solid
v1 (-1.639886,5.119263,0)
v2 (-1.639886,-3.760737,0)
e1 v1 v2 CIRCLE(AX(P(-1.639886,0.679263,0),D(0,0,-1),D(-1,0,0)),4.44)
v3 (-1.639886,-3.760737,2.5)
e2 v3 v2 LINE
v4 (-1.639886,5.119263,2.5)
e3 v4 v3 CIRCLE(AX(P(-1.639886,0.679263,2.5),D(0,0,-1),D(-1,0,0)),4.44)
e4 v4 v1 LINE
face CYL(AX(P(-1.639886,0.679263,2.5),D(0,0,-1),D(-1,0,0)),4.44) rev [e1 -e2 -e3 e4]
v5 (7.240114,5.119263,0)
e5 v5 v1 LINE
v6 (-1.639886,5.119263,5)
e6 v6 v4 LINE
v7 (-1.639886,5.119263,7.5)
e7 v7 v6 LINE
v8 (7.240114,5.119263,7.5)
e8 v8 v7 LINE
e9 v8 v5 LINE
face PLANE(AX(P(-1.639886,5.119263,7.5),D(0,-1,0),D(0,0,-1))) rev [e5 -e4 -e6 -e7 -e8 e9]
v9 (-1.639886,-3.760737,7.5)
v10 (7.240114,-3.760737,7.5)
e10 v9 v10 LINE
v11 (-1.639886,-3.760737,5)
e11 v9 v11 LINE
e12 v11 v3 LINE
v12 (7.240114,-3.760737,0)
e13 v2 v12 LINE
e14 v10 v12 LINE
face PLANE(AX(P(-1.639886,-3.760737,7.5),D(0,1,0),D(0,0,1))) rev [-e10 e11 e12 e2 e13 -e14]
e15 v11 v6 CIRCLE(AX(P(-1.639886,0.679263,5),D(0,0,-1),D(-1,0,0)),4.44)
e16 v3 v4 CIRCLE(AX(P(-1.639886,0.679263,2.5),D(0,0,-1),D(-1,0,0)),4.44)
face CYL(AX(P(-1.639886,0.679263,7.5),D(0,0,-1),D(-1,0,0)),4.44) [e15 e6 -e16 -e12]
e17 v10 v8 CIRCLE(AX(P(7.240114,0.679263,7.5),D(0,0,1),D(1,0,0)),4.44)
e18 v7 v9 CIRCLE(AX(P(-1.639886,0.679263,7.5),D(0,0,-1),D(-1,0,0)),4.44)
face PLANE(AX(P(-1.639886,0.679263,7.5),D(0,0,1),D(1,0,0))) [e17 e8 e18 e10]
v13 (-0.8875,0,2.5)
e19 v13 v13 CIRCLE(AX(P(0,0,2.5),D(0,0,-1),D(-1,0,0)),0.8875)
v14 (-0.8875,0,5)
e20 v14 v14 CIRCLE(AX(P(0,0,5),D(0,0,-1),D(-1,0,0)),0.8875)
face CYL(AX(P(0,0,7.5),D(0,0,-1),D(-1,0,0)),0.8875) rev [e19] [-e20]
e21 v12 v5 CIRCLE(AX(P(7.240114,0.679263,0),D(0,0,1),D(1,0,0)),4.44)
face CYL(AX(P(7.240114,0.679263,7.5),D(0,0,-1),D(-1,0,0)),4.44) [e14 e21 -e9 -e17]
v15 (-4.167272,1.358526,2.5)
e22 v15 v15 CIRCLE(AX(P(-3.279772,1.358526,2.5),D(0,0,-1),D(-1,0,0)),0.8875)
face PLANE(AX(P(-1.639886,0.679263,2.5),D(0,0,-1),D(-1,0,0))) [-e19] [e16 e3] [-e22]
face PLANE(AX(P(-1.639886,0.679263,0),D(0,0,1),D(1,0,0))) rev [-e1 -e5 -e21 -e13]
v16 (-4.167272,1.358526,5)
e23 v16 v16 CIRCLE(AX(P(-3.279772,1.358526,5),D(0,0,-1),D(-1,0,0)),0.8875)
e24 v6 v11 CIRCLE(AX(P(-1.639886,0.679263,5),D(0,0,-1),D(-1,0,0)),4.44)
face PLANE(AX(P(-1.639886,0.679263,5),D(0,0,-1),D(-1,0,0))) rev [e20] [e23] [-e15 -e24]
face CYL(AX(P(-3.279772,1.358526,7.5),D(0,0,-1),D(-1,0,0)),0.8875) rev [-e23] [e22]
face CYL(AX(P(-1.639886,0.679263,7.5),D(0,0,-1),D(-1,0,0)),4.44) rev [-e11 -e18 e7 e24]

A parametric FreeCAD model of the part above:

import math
import FreeCAD as App
import Part
import Sketcher
from FreeCAD import Vector

doc = App.newDocument("Part")
params = doc.addObject("Spreadsheet::Sheet", "Params")
for row, (alias, value) in enumerate([
    ("sketch1_radius", "4.44 mm"),
    ("sketch1_width", "8.88 mm"),
    ("pad1_length", "7.5 mm"),
    ("sketch2_diameter", "8.88 mm"),
    ("pocket1_length", "2.5 mm"),
    ("sketch3_diameter", "8.88 mm"),
    ("pocket2_length", "2.5 mm"),
], start=1):
    params.set(f"A{row}", alias)
    params.set(f"B{row}", "=" + value)
    params.setAlias(f"B{row}", alias)

body = doc.addObject("PartDesign::Body", "Body")

# Sketch on XY plane
sketch1 = body.newObject("Sketcher::SketchObject", "Sketch")
sketch1.AttachmentSupport = (doc.getObject("XY_Plane"), [""])
sketch1.MapMode = "FlatFace"
sketch1.addGeometry([
    Part.LineSegment(Vector(7.2, 5.1, 0), Vector(-1.6, 5.1, 0)),  # 0
    Part.ArcOfCircle(Part.Circle(Vector(-1.6, 0.7, 0), Vector(0, 0, 1), 4.4), math.radians(90), math.radians(270)),  # 1
    Part.LineSegment(Vector(-1.6, -3.8, 0), Vector(7.2, -3.8, 0)),  # 2
    Part.ArcOfCircle(Part.Circle(Vector(7.2, 0.7, 0), Vector(0, 0, 1), 4.4), math.radians(-90), math.radians(90)),  # 3
    Part.Circle(Vector(0, 0, 0), Vector(0, 0, 1), 0.9),  # 4
    Part.Circle(Vector(-3.3, 1.4, 0), Vector(0, 0, 1), 0.9),  # 5
], False)
sketch1.addConstraint([
    Sketcher.Constraint("Tangent", 0, 2, 1, 1),
    Sketcher.Constraint("Tangent", 1, 2, 2, 1),
    Sketcher.Constraint("Tangent", 2, 2, 3, 1),
    Sketcher.Constraint("Tangent", 3, 2, 0, 1),
    Sketcher.Constraint("Horizontal", 0),
    Sketcher.Constraint("Horizontal", 2),
    Sketcher.Constraint("Coincident", 4, 3, -1, 1),
    Sketcher.Constraint("Equal", 4, 5),
    Sketcher.Constraint("Radius", 1, 4.44),
    Sketcher.Constraint("Diameter", 4, 1.775),
    Sketcher.Constraint("DistanceX", 0, 2, 0, 1, 8.88),
    Sketcher.Constraint("DistanceX", 1, 3, -1, 1, 1.639886),
    Sketcher.Constraint("DistanceY", -1, 1, 1, 3, 0.679263),
    Sketcher.Constraint("DistanceX", 5, 3, -1, 1, 3.279772),
    Sketcher.Constraint("DistanceY", -1, 1, 5, 3, 1.358526),
])
sketch1.setExpression("Constraints[8]", "Params.sketch1_radius")
sketch1.setExpression("Constraints[10]", "Params.sketch1_width")
pad1 = body.newObject("PartDesign::Pad", "Pad")
pad1.Profile = sketch1
pad1.setExpression("Length", "Params.pad1_length")

# Sketch on XY plane
sketch2 = body.newObject("Sketcher::SketchObject", "Sketch001")
sketch2.AttachmentSupport = (doc.getObject("XY_Plane"), [""])
sketch2.MapMode = "FlatFace"
sketch2.addGeometry(Part.Circle(Vector(-1.6, 0.7, 0), Vector(0, 0, 1), 4.4), False)
sketch2.addConstraint([
    Sketcher.Constraint("Diameter", 0, 8.88),
    Sketcher.Constraint("DistanceX", 0, 3, -1, 1, 1.639886),
    Sketcher.Constraint("DistanceY", -1, 1, 0, 3, 0.679263),
])
sketch2.setExpression("Constraints[0]", "Params.sketch2_diameter")
pocket1 = body.newObject("PartDesign::Pocket", "Pocket")
pocket1.Profile = sketch2
pocket1.setExpression("Length", "Params.pocket1_length")
pocket1.Reversed = True

# Sketch on XY plane
sketch3 = body.newObject("Sketcher::SketchObject", "Sketch002")
sketch3.AttachmentSupport = (doc.getObject("XY_Plane"), [""])
sketch3.MapMode = "FlatFace"
sketch3.AttachmentOffset = App.Placement(Vector(0, 0, 5), App.Rotation())
sketch3.addGeometry(Part.Circle(Vector(-1.6, 0.7, 0), Vector(0, 0, 1), 4.4), False)
sketch3.addConstraint([
    Sketcher.Constraint("Diameter", 0, 8.88),
    Sketcher.Constraint("DistanceX", 0, 3, -1, 1, 1.639886),
    Sketcher.Constraint("DistanceY", -1, 1, 0, 3, 0.679263),
])
sketch3.setExpression("Constraints[0]", "Params.sketch3_diameter")
pocket2 = body.newObject("PartDesign::Pocket", "Pocket001")
pocket2.Profile = sketch3
pocket2.setExpression("Length", "Params.pocket2_length")
pocket2.Reversed = True

doc.recompute()
